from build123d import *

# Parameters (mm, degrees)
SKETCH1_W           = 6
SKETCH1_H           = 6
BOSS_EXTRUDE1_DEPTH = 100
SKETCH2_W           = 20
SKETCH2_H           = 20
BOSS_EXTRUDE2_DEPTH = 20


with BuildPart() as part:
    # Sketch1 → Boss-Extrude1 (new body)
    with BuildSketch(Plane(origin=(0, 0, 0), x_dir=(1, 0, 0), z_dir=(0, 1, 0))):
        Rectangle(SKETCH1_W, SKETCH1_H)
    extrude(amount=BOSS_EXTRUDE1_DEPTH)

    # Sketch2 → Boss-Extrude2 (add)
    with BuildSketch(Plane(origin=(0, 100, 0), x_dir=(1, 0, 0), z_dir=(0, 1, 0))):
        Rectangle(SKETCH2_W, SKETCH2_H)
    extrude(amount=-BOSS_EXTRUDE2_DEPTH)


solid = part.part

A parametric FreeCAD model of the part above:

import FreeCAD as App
import Part
import Sketcher

V = App.Vector


def add_polygon(sketch, points):
    """Adds a closed chain of lines whose ends are joined by coincident constraints."""
    first, n = sketch.GeometryCount, len(points)
    for a, b in zip(points, points[1:] + points[:1]):
        sketch.addGeometry(Part.LineSegment(App.Vector(*a, 0), App.Vector(*b, 0)), False)
    for i in range(n):
        sketch.addConstraint(Sketcher.Constraint("Coincident", first + i, 2, first + (i + 1) % n, 1))

doc = App.newDocument("Part")
params = doc.addObject("Spreadsheet::Sheet", "Params")
for row, (alias, value) in enumerate([
    ("sketch1_width", "6 mm"),
    ("pad1_length", "100 mm"),
    ("sketch2_width", "20 mm"),
    ("pad2_length", "20 mm"),
], start=1):
    params.set(f"A{row}", alias)
    params.set(f"B{row}", "=" + value)
    params.setAlias(f"B{row}", alias)

body = doc.addObject("PartDesign::Body", "Body")

sketch1 = body.newObject("Sketcher::SketchObject", "Sketch")
sketch1.AttachmentSupport = (doc.getObject("XZ_Plane"), [""])
sketch1.MapMode = "FlatFace"
add_polygon(sketch1, [(-3, -3), (-3, 3), (3, 3), (3, -3)])
sketch1.addConstraint(Sketcher.Constraint("Vertical", 0))
sketch1.addConstraint(Sketcher.Constraint("Horizontal", 1))
sketch1.addConstraint(Sketcher.Constraint("Vertical", 2))
sketch1.addConstraint(Sketcher.Constraint("Horizontal", 3))
sketch1.addConstraint(Sketcher.Constraint("Symmetric", 0, 2, 2, 2, -1, 1))
sketch1.addConstraint(Sketcher.Constraint("Equal", 3, 0))
sketch1.addConstraint(Sketcher.Constraint("DistanceX", 1, 1, 1, 2, 6.0))
sketch1.setExpression("Constraints[10]", "Params.sketch1_width")
pad1 = body.newObject("PartDesign::Pad", "Pad")
pad1.Profile = sketch1
pad1.setExpression("Length", "Params.pad1_length")
pad1.Reversed = True

sketch2 = body.newObject("Sketcher::SketchObject", "Sketch001")
sketch2.AttachmentSupport = (doc.getObject("XZ_Plane"), [""])
sketch2.MapMode = "FlatFace"
sketch2.AttachmentOffset = App.Placement(V(0, 0, -100), App.Rotation())
add_polygon(sketch2, [(-10, -10), (-10, 10), (10, 10), (10, -10)])
sketch2.addConstraint(Sketcher.Constraint("Vertical", 0))
sketch2.addConstraint(Sketcher.Constraint("Horizontal", 1))
sketch2.addConstraint(Sketcher.Constraint("Vertical", 2))
sketch2.addConstraint(Sketcher.Constraint("Horizontal", 3))
sketch2.addConstraint(Sketcher.Constraint("Symmetric", 0, 2, 2, 2, -1, 1))
sketch2.addConstraint(Sketcher.Constraint("Equal", 3, 0))
sketch2.addConstraint(Sketcher.Constraint("DistanceX", 1, 1, 1, 2, 20.0))
sketch2.setExpression("Constraints[10]", "Params.sketch2_width")
pad2 = body.newObject("PartDesign::Pad", "Pad001")
pad2.Profile = sketch2
pad2.setExpression("Length", "Params.pad2_length")

doc.recompute()
